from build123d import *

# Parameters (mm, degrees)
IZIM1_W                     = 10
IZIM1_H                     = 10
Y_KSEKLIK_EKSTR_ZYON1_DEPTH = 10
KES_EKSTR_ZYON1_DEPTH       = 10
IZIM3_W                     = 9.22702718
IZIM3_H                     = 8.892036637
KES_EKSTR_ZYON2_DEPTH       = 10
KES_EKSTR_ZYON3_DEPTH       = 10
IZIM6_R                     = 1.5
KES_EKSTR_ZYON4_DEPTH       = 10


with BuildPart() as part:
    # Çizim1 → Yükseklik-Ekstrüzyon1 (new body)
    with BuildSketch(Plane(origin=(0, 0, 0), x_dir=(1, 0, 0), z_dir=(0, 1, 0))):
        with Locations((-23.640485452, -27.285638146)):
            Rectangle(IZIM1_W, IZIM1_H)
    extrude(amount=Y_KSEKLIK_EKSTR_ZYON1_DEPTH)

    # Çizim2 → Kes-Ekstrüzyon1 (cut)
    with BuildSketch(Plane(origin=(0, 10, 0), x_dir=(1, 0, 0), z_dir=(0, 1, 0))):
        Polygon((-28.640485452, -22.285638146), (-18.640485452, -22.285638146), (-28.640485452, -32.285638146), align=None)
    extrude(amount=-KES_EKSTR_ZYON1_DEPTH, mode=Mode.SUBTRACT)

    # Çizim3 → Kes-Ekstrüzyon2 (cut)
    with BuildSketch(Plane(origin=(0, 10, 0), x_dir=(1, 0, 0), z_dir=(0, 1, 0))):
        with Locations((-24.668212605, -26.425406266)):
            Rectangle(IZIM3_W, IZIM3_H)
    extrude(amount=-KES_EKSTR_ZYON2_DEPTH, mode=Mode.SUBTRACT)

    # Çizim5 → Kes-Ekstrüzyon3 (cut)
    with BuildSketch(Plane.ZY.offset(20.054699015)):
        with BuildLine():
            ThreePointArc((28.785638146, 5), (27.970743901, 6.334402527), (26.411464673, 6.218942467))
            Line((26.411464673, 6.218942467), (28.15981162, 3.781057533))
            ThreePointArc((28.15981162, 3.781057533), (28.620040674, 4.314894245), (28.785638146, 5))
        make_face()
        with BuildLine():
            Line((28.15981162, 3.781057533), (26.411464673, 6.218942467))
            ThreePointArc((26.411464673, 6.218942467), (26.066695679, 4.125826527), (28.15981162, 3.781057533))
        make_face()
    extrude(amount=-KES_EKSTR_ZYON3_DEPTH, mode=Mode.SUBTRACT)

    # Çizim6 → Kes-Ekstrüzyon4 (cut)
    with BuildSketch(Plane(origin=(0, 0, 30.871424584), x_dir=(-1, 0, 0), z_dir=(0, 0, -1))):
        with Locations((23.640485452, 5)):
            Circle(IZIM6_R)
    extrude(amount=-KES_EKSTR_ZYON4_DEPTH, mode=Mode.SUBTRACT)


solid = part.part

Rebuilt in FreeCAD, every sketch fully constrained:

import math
import FreeCAD as App
import Part
import Sketcher
from FreeCAD import Vector
Q = App.Units.Quantity


def add_polygon(sketch, points):
    """Adds a closed chain of lines whose ends are joined by coincident constraints."""
    first, n = sketch.GeometryCount, len(points)
    for a, b in zip(points, points[1:] + points[:1]):
        sketch.addGeometry(Part.LineSegment(App.Vector(*a, 0), App.Vector(*b, 0)), False)
    for i in range(n):
        sketch.addConstraint(Sketcher.Constraint("Coincident", first + i, 2, first + (i + 1) % n, 1))

doc = App.newDocument("Part")
params = doc.addObject("Spreadsheet::Sheet", "Params")
for row, (alias, value) in enumerate([
    ("sketch1_width", "10 mm"),
    ("pad1_length", "10 mm"),
    ("sketch2_width", "10 mm"),
    ("pocket1_length", "10 mm"),
    ("pocket2_length", "10 mm"),
    ("sketch4_radius", "1.5 mm"),
    ("pocket3_length", "10 mm"),
    ("sketch5_diameter", "3 mm"),
    ("pocket4_length", "10 mm"),
], start=1):
    params.set(f"A{row}", alias)
    params.set(f"B{row}", "=" + value)
    params.setAlias(f"B{row}", alias)

body = doc.addObject("PartDesign::Body", "Body")

sketch1 = body.newObject("Sketcher::SketchObject", "Sketch")
sketch1.AttachmentSupport = (doc.getObject("XZ_Plane"), [""])
sketch1.MapMode = "FlatFace"
add_polygon(sketch1, [(-29, 22), (-29, 32), (-19, 32), (-19, 22)])
sketch1.addConstraint([
    Sketcher.Constraint("Vertical", 0),
    Sketcher.Constraint("Horizontal", 1),
    Sketcher.Constraint("Vertical", 2),
    Sketcher.Constraint("Horizontal", 3),
    Sketcher.Constraint("Equal", 3, 0),
    Sketcher.Constraint("DistanceX", 1, 1, 1, 2, Q("10 mm")),
    Sketcher.Constraint("DistanceY", -1, 1, 0, 2, Q("32.285638 mm")),
    Sketcher.Constraint("DistanceX", 0, 2, -1, 1, Q("28.640485 mm")),
])
sketch1.setExpression("Constraints[9]", "Params.sketch1_width")
pad1 = body.newObject("PartDesign::Pad", "Pad")
pad1.Profile = sketch1
pad1.setExpression("Length", "Params.pad1_length")
pad1.Reversed = True

sketch2 = body.newObject("Sketcher::SketchObject", "Sketch001")
sketch2.AttachmentSupport = (doc.getObject("XZ_Plane"), [""])
sketch2.MapMode = "FlatFace"
sketch2.AttachmentOffset = App.Placement(Vector(0, 0, -10), App.Rotation())
add_polygon(sketch2, [(-19, 22), (-29, 22), (-29, 32)])
sketch2.addConstraint([
    Sketcher.Constraint("Horizontal", 0),
    Sketcher.Constraint("Vertical", 1),
    Sketcher.Constraint("Equal", 0, 1),
    Sketcher.Constraint("DistanceX", 0, 2, 0, 1, Q("10 mm")),
    Sketcher.Constraint("DistanceY", -1, 1, 0, 2, Q("22.285638 mm")),
    Sketcher.Constraint("DistanceX", 0, 2, -1, 1, Q("28.640485 mm")),
])
sketch2.setExpression("Constraints[6]", "Params.sketch2_width")
pocket1 = body.newObject("PartDesign::Pocket", "Pocket")
pocket1.Profile = sketch2
pocket1.setExpression("Length", "Params.pocket1_length")
pocket1.Reversed = True

sketch3 = body.newObject("Sketcher::SketchObject", "Sketch002")
sketch3.AttachmentSupport = (doc.getObject("XZ_Plane"), [""])
sketch3.MapMode = "FlatFace"
sketch3.AttachmentOffset = App.Placement(Vector(0, 0, -10), App.Rotation())
add_polygon(sketch3, [(-29, 22), (-29, 31), (-20, 31), (-20, 22)])
sketch3.addConstraint([
    Sketcher.Constraint("Vertical", 0),
    Sketcher.Constraint("Horizontal", 1),
    Sketcher.Constraint("Vertical", 2),
    Sketcher.Constraint("Horizontal", 3),
    Sketcher.Constraint("DistanceX", 1, 2, -1, 1, Q("20.054699 mm")),
    Sketcher.Constraint("DistanceX", 1, 1, 1, 2, Q("9.227027 mm")),
    Sketcher.Constraint("DistanceY", 0, 1, 0, 2, Q("8.892037 mm")),
    Sketcher.Constraint("DistanceY", -1, 1, 0, 2, Q("30.871425 mm")),
])
pocket2 = body.newObject("PartDesign::Pocket", "Pocket001")
pocket2.Profile = sketch3
pocket2.setExpression("Length", "Params.pocket2_length")
pocket2.Reversed = True

sketch4 = body.newObject("Sketcher::SketchObject", "Sketch003")
sketch4.AttachmentSupport = (doc.getObject("YZ_Plane"), [""])
sketch4.MapMode = "FlatFace"
sketch4.AttachmentOffset = App.Placement(Vector(0, 0, -20.054699), App.Rotation())
sketch4.addGeometry([
    Part.ArcOfCircle(Part.Circle(Vector(5, 27.3, 0), Vector(0, 0, 1), 1.5), math.radians(-36), math.radians(90)),
    Part.ArcOfCircle(Part.Circle(Vector(5, 27.3, 0), Vector(0, 0, 1), 1.5), math.radians(144), math.radians(324)),
    Part.ArcOfCircle(Part.Circle(Vector(5, 27.3, 0), Vector(0, 0, 1), 1.5), math.radians(90), math.radians(144)),
], False)
sketch4.addConstraint([
    Sketcher.Constraint("Tangent", 0, 1, 1, 2),
    Sketcher.Constraint("Tangent", 1, 1, 2, 2),
    Sketcher.Constraint("Tangent", 2, 1, 0, 2),
    Sketcher.Constraint("Vertical", 1, 3, 2, 1),
    Sketcher.Constraint("Radius", 0, Q("1.5 mm")),
    Sketcher.Constraint("DistanceX", -1, 1, 0, 3, Q("5 mm")),
    Sketcher.Constraint("DistanceY", -1, 1, 0, 3, Q("27.285638 mm")),
    Sketcher.Constraint("DistanceY", -1, 1, 1, 1, Q("28.159812 mm")),
    Sketcher.Constraint("DistanceX", -1, 1, 0, 1, Q("6.218942 mm")),
])
sketch4.setExpression("Constraints[4]", "Params.sketch4_radius")
pocket3 = body.newObject("PartDesign::Pocket", "Pocket002")
pocket3.Profile = sketch4
pocket3.setExpression("Length", "Params.pocket3_length")
pocket3.Reversed = True

sketch5 = body.newObject("Sketcher::SketchObject", "Sketch004")
sketch5.AttachmentSupport = (doc.getObject("XY_Plane"), [""])
sketch5.MapMode = "FlatFace"
sketch5.AttachmentOffset = App.Placement(Vector(0, 0, 30.871425), App.Rotation())
sketch5.addGeometry(Part.Circle(Vector(-23.6, 5, 0), Vector(0, 0, 1), 1.5), False)
sketch5.addConstraint([
    Sketcher.Constraint("Diameter", 0, Q("3 mm")),
    Sketcher.Constraint("DistanceY", -1, 1, 0, 3, Q("5 mm")),
    Sketcher.Constraint("DistanceX", 0, 3, -1, 1, Q("23.640485 mm")),
])
sketch5.setExpression("Constraints[0]", "Params.sketch5_diameter")
pocket4 = body.newObject("PartDesign::Pocket", "Pocket003")
pocket4.Profile = sketch5
pocket4.setExpression("Length", "Params.pocket4_length")
pocket4.Reversed = True

doc.recompute()
